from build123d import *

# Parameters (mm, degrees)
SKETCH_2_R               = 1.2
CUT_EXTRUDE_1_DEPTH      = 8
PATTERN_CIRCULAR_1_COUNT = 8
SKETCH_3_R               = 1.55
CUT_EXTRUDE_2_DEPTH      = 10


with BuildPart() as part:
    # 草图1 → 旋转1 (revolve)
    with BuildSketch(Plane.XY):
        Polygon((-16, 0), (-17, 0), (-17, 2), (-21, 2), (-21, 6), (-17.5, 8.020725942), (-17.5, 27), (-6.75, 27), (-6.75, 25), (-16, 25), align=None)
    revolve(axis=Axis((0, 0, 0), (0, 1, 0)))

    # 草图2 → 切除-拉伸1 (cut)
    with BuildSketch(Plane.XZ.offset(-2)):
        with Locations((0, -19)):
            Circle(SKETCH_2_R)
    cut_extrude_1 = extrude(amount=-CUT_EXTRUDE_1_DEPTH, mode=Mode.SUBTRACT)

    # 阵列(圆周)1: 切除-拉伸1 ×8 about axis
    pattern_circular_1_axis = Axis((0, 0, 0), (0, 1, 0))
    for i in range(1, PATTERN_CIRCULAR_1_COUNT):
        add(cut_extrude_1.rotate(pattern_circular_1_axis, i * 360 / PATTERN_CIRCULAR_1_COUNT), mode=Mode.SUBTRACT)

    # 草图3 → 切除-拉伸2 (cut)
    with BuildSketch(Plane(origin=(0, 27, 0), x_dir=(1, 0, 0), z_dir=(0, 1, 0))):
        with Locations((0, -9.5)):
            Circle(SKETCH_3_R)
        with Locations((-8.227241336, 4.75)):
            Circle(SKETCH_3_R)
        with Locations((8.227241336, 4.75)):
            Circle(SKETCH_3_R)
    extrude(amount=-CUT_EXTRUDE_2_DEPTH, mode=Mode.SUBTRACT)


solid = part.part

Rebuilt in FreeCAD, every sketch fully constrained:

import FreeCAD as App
import Part
import Sketcher
Q = App.Units.Quantity


def add_polygon(sketch, points):
    """Adds a closed chain of lines whose ends are joined by coincident constraints."""
    first, n = sketch.GeometryCount, len(points)
    for a, b in zip(points, points[1:] + points[:1]):
        sketch.addGeometry(Part.LineSegment(App.Vector(*a, 0), App.Vector(*b, 0)), False)
    for i in range(n):
        sketch.addConstraint(Sketcher.Constraint("Coincident", first + i, 2, first + (i + 1) % n, 1))

doc = App.newDocument("Part")
body = doc.addObject("PartDesign::Body", "Body")

# Sketch on XY plane
sketch1 = body.newObject("Sketcher::SketchObject", "Sketch")
sketch1.AttachmentSupport = (doc.getObject("XY_Plane"), [""])
sketch1.MapMode = "FlatFace"
add_polygon(sketch1, [(-17, 0), (-16, 0), (-16, 25), (-6.8, 25), (-6.8, 27), (-17.5, 27), (-17.5, 8), (-21, 6), (-21, 2), (-17, 2)])  # lines 0-9
sketch1.addConstraint([
    Sketcher.Constraint("Horizontal", 0),
    Sketcher.Constraint("Vertical", 1),
    Sketcher.Constraint("Horizontal", 2),
    Sketcher.Constraint("Vertical", 3),
    Sketcher.Constraint("Horizontal", 4),
    Sketcher.Constraint("Vertical", 5),
    Sketcher.Constraint("Vertical", 7),
    Sketcher.Constraint("Horizontal", 8),
    Sketcher.Constraint("Vertical", 9),
    Sketcher.Constraint("PointOnObject", 0, 2, -1),
    Sketcher.Constraint("Equal", 8, 7),
    Sketcher.Constraint("Equal", 3, 9),
    Sketcher.Constraint("DistanceX", 0, 1, 0, 2, 1.0),
    Sketcher.Constraint("DistanceX", 8, 1, 8, 2, 4.0),
    Sketcher.Constraint("DistanceY", 1, 1, 1, 2, 25.0),
    Sketcher.Constraint("DistanceY", 3, 1, 3, 2, 2.0),
    Sketcher.Constraint("Angle", 6, Q("-150 deg")),
    Sketcher.Constraint("DistanceX", 0, 2, -1, 1, 16.0),
    Sketcher.Constraint("DistanceX", 2, 1, 2, 2, 9.25),
    Sketcher.Constraint("DistanceX", 4, 2, 4, 1, 10.75),
])
revolution = body.newObject("PartDesign::Revolution", "Revolution")
revolution.Profile = sketch1
revolution.ReferenceAxis = (sketch1, ["V_Axis"])
revolution.Angle = 360

# Sketch on XZ plane
sketch2 = body.newObject("Sketcher::SketchObject", "Sketch001")
sketch2.AttachmentSupport = (doc.getObject("XZ_Plane"), [""])
sketch2.MapMode = "FlatFace"
sketch2.AttachmentOffset = App.Placement(App.Vector(0, 0, -2), App.Rotation())
sketch2.addGeometry(Part.Circle(App.Vector(0, -19, 0), App.Vector(0, 0, 1), 1.2), False)
sketch2.addConstraint([
    Sketcher.Constraint("PointOnObject", 0, 3, -2),
    Sketcher.Constraint("Diameter", 0, 2.4),
    Sketcher.Constraint("DistanceY", 0, 3, -1, 1, 19.0),
])
pocket1 = body.newObject("PartDesign::Pocket", "Pocket")
pocket1.Profile = sketch2
pocket1.Length = 8
doc.recompute()

polarpattern = body.newObject("PartDesign::PolarPattern", "PolarPattern")
polarpattern.Originals = [pocket1]
polarpattern.Axis = (doc.getObject("Y_Axis"), [""])
polarpattern.Angle = 360
polarpattern.Occurrences = 8
body.Tip = polarpattern

# Sketch on XZ plane
sketch3 = body.newObject("Sketcher::SketchObject", "Sketch002")
sketch3.AttachmentSupport = (doc.getObject("XZ_Plane"), [""])
sketch3.MapMode = "FlatFace"
sketch3.AttachmentOffset = App.Placement(App.Vector(0, 0, -27), App.Rotation())
sketch3.addGeometry([
    Part.Circle(App.Vector(0, 9.5, 0), App.Vector(0, 0, 1), 1.6),
    Part.Circle(App.Vector(-8.2, -4.8, 0), App.Vector(0, 0, 1), 1.6),
    Part.Circle(App.Vector(8.2, -4.8, 0), App.Vector(0, 0, 1), 1.6),
], False)
sketch3.addConstraint([
    Sketcher.Constraint("Equal", 0, 1),
    Sketcher.Constraint("Equal", 1, 2),
    Sketcher.Constraint("Symmetric", 1, 3, 2, 3, -2),
    Sketcher.Constraint("PointOnObject", 0, 3, -2),
    Sketcher.Constraint("Diameter", 0, 3.1),
    Sketcher.Constraint("DistanceY", -1, 1, 0, 3, 9.5),
    Sketcher.Constraint("DistanceY", 1, 3, -1, 1, 4.75),
    Sketcher.Constraint("DistanceX", 1, 3, -1, 1, 8.227241),
])
pocket2 = body.newObject("PartDesign::Pocket", "Pocket001")
pocket2.Profile = sketch3
pocket2.Length = 10
pocket2.Reversed = True

doc.recompute()
